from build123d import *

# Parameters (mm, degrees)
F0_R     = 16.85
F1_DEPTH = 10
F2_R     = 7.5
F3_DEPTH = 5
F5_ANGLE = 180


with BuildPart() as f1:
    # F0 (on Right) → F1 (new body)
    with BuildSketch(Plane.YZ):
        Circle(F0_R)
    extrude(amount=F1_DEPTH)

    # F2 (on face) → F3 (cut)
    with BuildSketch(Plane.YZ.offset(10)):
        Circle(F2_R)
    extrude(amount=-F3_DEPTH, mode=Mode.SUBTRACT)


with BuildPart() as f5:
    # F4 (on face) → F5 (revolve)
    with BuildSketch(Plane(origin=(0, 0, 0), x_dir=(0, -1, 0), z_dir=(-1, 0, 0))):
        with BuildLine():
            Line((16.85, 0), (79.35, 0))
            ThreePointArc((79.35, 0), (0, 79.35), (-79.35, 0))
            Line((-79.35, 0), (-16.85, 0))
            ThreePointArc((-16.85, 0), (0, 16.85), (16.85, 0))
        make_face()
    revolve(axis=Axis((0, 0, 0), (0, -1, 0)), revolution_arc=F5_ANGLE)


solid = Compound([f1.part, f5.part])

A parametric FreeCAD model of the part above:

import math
import FreeCAD as App
import Part
import Sketcher
from FreeCAD import Vector

doc = App.newDocument("Part")
body = doc.addObject("PartDesign::Body", "Body")

sketch1 = body.newObject("Sketcher::SketchObject", "Sketch")
sketch1.AttachmentSupport = (doc.getObject("YZ_Plane"), [""])
sketch1.MapMode = "FlatFace"
sketch1.addGeometry(Part.Circle(Vector(0, 0, 0), Vector(0, 0, 1), 17), False)
sketch1.addConstraint(Sketcher.Constraint("Coincident", 0, 3, -1, 1))
sketch1.addConstraint(Sketcher.Constraint("Diameter", 0, 33.7))
pad1 = body.newObject("PartDesign::Pad", "Pad")
pad1.Profile = sketch1
pad1.Length = 10

sketch2 = body.newObject("Sketcher::SketchObject", "Sketch001")
sketch2.AttachmentSupport = (doc.getObject("YZ_Plane"), [""])
sketch2.MapMode = "FlatFace"
sketch2.AttachmentOffset = App.Placement(Vector(0, 0, 10), App.Rotation())
sketch2.addGeometry(Part.Circle(Vector(0, 0, 0), Vector(0, 0, 1), 8), False)
sketch2.addConstraint(Sketcher.Constraint("Coincident", 0, 3, -1, 1))
sketch2.addConstraint(Sketcher.Constraint("Diameter", 0, 15.0))
pocket1 = body.newObject("PartDesign::Pocket", "Pocket")
pocket1.Profile = sketch2
pocket1.Length = 5
body2 = doc.addObject("PartDesign::Body", "Body001")

sketch3 = body2.newObject("Sketcher::SketchObject", "Sketch002")
sketch3.AttachmentSupport = (doc.getObject("YZ_Plane001"), [""])
sketch3.MapMode = "FlatFace"
sketch3.addGeometry(Part.LineSegment(Vector(-17, 0, 0), Vector(-79, 0, 0)), False)
sketch3.addGeometry(Part.ArcOfCircle(Part.Circle(Vector(0, 0, 0), Vector(0, 0, 1), 79), math.radians(0), math.radians(180)), False)
sketch3.addGeometry(Part.LineSegment(Vector(79, 0, 0), Vector(17, 0, 0)), False)
sketch3.addGeometry(Part.ArcOfCircle(Part.Circle(Vector(0, 0, 0), Vector(0, 0, 1), 17), math.radians(0), math.radians(180)), False)
sketch3.addConstraint(Sketcher.Constraint("Coincident", 0, 2, 1, 2))
sketch3.addConstraint(Sketcher.Constraint("Coincident", 1, 1, 2, 1))
sketch3.addConstraint(Sketcher.Constraint("Coincident", 2, 2, 3, 1))
sketch3.addConstraint(Sketcher.Constraint("Coincident", 3, 2, 0, 1))
sketch3.addConstraint(Sketcher.Constraint("Horizontal", 0))
sketch3.addConstraint(Sketcher.Constraint("Horizontal", 2))
sketch3.addConstraint(Sketcher.Constraint("Coincident", 1, 3, -1, 1))
sketch3.addConstraint(Sketcher.Constraint("Coincident", 3, 3, -1, 1))
sketch3.addConstraint(Sketcher.Constraint("PointOnObject", 0, 2, -1))
sketch3.addConstraint(Sketcher.Constraint("PointOnObject", 1, 1, -1))
sketch3.addConstraint(Sketcher.Constraint("Radius", 1, 79.35))
sketch3.addConstraint(Sketcher.Constraint("Radius", 3, 16.85))
revolution = body2.newObject("PartDesign::Revolution", "Revolution")
revolution.Profile = sketch3
revolution.ReferenceAxis = (sketch3, ["H_Axis"])
revolution.Angle = 180
revolution.Reversed = True

doc.recompute()
